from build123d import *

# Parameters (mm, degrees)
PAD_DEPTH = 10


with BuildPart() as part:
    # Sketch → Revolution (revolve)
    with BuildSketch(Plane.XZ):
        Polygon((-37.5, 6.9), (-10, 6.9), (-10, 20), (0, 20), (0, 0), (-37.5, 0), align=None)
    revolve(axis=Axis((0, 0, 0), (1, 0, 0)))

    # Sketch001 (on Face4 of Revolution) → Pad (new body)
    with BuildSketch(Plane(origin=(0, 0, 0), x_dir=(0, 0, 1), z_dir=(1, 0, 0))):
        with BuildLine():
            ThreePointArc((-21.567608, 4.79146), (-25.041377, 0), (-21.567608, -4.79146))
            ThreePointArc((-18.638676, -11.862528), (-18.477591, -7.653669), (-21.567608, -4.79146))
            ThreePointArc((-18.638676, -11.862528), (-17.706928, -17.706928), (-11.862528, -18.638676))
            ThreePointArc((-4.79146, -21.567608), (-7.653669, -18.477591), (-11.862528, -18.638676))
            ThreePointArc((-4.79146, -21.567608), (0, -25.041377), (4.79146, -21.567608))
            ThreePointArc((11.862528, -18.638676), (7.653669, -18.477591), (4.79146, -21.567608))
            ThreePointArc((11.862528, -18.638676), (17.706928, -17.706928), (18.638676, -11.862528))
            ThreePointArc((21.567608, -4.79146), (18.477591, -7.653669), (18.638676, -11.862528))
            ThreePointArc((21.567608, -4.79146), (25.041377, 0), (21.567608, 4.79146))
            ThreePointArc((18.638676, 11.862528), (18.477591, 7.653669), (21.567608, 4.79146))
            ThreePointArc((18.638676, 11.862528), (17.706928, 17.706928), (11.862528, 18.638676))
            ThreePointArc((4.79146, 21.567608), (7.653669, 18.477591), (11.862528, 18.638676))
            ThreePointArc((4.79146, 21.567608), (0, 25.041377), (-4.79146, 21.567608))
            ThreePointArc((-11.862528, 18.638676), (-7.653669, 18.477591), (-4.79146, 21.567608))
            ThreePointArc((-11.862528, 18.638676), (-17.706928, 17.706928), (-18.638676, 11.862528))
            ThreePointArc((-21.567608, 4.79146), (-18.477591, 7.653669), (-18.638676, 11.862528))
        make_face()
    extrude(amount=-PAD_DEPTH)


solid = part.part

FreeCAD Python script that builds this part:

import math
import FreeCAD as App
import Part
import Sketcher

V = App.Vector

doc = App.newDocument("Part")
body = doc.addObject("PartDesign::Body", "Body")

# Sketch on XZ plane
sketch1 = doc.addObject("Sketcher::SketchObject", "Sketch")
body.addObject(sketch1)
sketch1.AttachmentSupport = (doc.XZ_Plane, [""])
sketch1.MapMode = "FlatFace"
sketch1.addGeometry([
    Part.LineSegment(V(-10, 7, 0), V(-38, 7, 0)),  # 0
    Part.LineSegment(V(-38, 7, 0), V(-38, 0, 0)),  # 1
    Part.LineSegment(V(-38, 0, 0), V(0, 0, 0)),  # 2
    Part.LineSegment(V(0, 0, 0), V(0, 20, 0)),  # 3
    Part.LineSegment(V(0, 20, 0), V(-10, 20, 0)),  # 4
    Part.LineSegment(V(-10, 20, 0), V(-10, 7, 0)),  # 5
], False)
sketch1.addConstraint([
    Sketcher.Constraint("Coincident", 0, 2, 1, 1),
    Sketcher.Constraint("Coincident", 1, 2, 2, 1),
    Sketcher.Constraint("Coincident", 2, 2, 3, 1),
    Sketcher.Constraint("Coincident", 3, 2, 4, 1),
    Sketcher.Constraint("Coincident", 4, 2, 5, 1),
    Sketcher.Constraint("Coincident", 5, 2, 0, 1),
    Sketcher.Constraint("Horizontal", 0),
    Sketcher.Constraint("Vertical", 1),
    Sketcher.Constraint("Horizontal", 2),
    Sketcher.Constraint("Vertical", 3),
    Sketcher.Constraint("Horizontal", 4),
    Sketcher.Constraint("Vertical", 5),
    Sketcher.Constraint("Coincident", 2, 2, -1, 1),
    Sketcher.Constraint("DistanceX", 4, 2, 4, 1, 10.0),
    Sketcher.Constraint("DistanceY", 3, 1, 3, 2, 20.0),
    Sketcher.Constraint("DistanceX", 0, 2, 0, 1, 27.5),
    Sketcher.Constraint("DistanceY", 1, 2, 1, 1, 6.9),
])
revolution = doc.addObject("PartDesign::Revolution", "Revolution")
body.addObject(revolution)
revolution.Profile = sketch1
revolution.ReferenceAxis = (sketch1, ["H_Axis"])
revolution.Angle = 360

# Sketch on YZ plane
sketch2 = doc.addObject("Sketcher::SketchObject", "Sketch001")
body.addObject(sketch2)
sketch2.AttachmentSupport = (doc.YZ_Plane, [""])
sketch2.MapMode = "FlatFace"
sketch2.addGeometry([
    Part.ArcOfCircle(Part.Circle(V(0, -20, 0), V(0, 0, 1), 5), math.radians(-162), math.radians(-18)),  # 0
    Part.ArcOfCircle(Part.Circle(V(10, -23, 0), V(0, 0, 1), 5), math.radians(63), math.radians(162)),  # 1
    Part.ArcOfCircle(Part.Circle(V(14, -14, 0), V(0, 0, 1), 5), math.radians(-117), math.radians(27)),  # 2
    Part.ArcOfCircle(Part.Circle(V(23, -10, 0), V(0, 0, 1), 5), math.radians(108), math.radians(207)),  # 3
    Part.ArcOfCircle(Part.Circle(V(20, 0, 0), V(0, 0, 1), 5), math.radians(-72), math.radians(72)),  # 4
    Part.ArcOfCircle(Part.Circle(V(23, 10, 0), V(0, 0, 1), 5), math.radians(153), math.radians(252)),  # 5
    Part.ArcOfCircle(Part.Circle(V(14, 14, 0), V(0, 0, 1), 5), math.radians(-27), math.radians(117)),  # 6
    Part.ArcOfCircle(Part.Circle(V(10, 23, 0), V(0, 0, 1), 5), math.radians(-162), math.radians(-63)),  # 7
    Part.ArcOfCircle(Part.Circle(V(0, 20, 0), V(0, 0, 1), 5), math.radians(18), math.radians(162)),  # 8
    Part.ArcOfCircle(Part.Circle(V(-10, 23, 0), V(0, 0, 1), 5), math.radians(-117), math.radians(-18)),  # 9
    Part.ArcOfCircle(Part.Circle(V(-14, 14, 0), V(0, 0, 1), 5), math.radians(63), math.radians(207)),  # 10
    Part.ArcOfCircle(Part.Circle(V(-23, 10, 0), V(0, 0, 1), 5), math.radians(-72), math.radians(27)),  # 11
    Part.ArcOfCircle(Part.Circle(V(-20, 0, 0), V(0, 0, 1), 5), math.radians(108), math.radians(252)),  # 12
    Part.ArcOfCircle(Part.Circle(V(-23, -10, 0), V(0, 0, 1), 5), math.radians(-27), math.radians(72)),  # 13
    Part.ArcOfCircle(Part.Circle(V(-14, -14, 0), V(0, 0, 1), 5), math.radians(153), math.radians(297)),  # 14
    Part.ArcOfCircle(Part.Circle(V(-10, -23, 0), V(0, 0, 1), 5), math.radians(18), math.radians(117)),  # 15
], False)
sketch2.addConstraint([
    Sketcher.Constraint("Tangent", 0, 2, 1, 2),
    Sketcher.Constraint("Tangent", 1, 1, 2, 1),
    Sketcher.Constraint("Tangent", 2, 2, 3, 2),
    Sketcher.Constraint("Tangent", 3, 1, 4, 1),
    Sketcher.Constraint("Tangent", 4, 2, 5, 2),
    Sketcher.Constraint("Tangent", 5, 1, 6, 1),
    Sketcher.Constraint("Tangent", 6, 2, 7, 2),
    Sketcher.Constraint("Tangent", 7, 1, 8, 1),
    Sketcher.Constraint("Tangent", 8, 2, 9, 2),
    Sketcher.Constraint("Tangent", 9, 1, 10, 1),
    Sketcher.Constraint("Tangent", 10, 2, 11, 2),
    Sketcher.Constraint("Tangent", 11, 1, 12, 1),
    Sketcher.Constraint("Tangent", 12, 2, 13, 2),
    Sketcher.Constraint("Tangent", 13, 1, 14, 1),
    Sketcher.Constraint("Tangent", 14, 2, 15, 2),
    Sketcher.Constraint("Tangent", 15, 1, 0, 1),
    Sketcher.Constraint("Equal", 0, 1),
    Sketcher.Constraint("Equal", 1, 2),
    Sketcher.Constraint("Equal", 2, 3),
    Sketcher.Constraint("Equal", 3, 4),
    Sketcher.Constraint("Equal", 4, 5),
    Sketcher.Constraint("Equal", 5, 6),
    Sketcher.Constraint("Equal", 6, 7),
    Sketcher.Constraint("Equal", 7, 8),
    Sketcher.Constraint("Equal", 8, 9),
    Sketcher.Constraint("Equal", 9, 10),
    Sketcher.Constraint("Equal", 10, 11),
    Sketcher.Constraint("Equal", 11, 12),
    Sketcher.Constraint("Equal", 12, 13),
    Sketcher.Constraint("Equal", 13, 14),
    Sketcher.Constraint("Equal", 14, 15),
    Sketcher.Constraint("Symmetric", 0, 3, 8, 3, -1, 1),
    Sketcher.Constraint("Symmetric", 2, 3, 10, 3, -1, 1),
    Sketcher.Constraint("Symmetric", 4, 3, 12, 3, -1, 1),
    Sketcher.Constraint("Symmetric", 6, 3, 14, 3, -1, 1),
    Sketcher.Constraint("Symmetric", 7, 3, 9, 3, -2),
    Sketcher.Constraint("Symmetric", 5, 3, 11, 3, -2),
    Sketcher.Constraint("DistanceY", 0, 3, -1, 1, 20.0),
    Sketcher.Constraint("DistanceX", -1, 1, 4, 3, 20.0),
    Sketcher.Constraint("Radius", 0, 5.041377),
    Sketcher.Constraint("DistanceX", -1, 1, 1, 3, 9.58292),
    Sketcher.Constraint("DistanceY", 3, 3, -1, 1, 9.58292),
])
pad1 = doc.addObject("PartDesign::Pad", "Pad")
body.addObject(pad1)
pad1.Profile = sketch2
pad1.Length = 10
pad1.Reversed = True

doc.recompute()
